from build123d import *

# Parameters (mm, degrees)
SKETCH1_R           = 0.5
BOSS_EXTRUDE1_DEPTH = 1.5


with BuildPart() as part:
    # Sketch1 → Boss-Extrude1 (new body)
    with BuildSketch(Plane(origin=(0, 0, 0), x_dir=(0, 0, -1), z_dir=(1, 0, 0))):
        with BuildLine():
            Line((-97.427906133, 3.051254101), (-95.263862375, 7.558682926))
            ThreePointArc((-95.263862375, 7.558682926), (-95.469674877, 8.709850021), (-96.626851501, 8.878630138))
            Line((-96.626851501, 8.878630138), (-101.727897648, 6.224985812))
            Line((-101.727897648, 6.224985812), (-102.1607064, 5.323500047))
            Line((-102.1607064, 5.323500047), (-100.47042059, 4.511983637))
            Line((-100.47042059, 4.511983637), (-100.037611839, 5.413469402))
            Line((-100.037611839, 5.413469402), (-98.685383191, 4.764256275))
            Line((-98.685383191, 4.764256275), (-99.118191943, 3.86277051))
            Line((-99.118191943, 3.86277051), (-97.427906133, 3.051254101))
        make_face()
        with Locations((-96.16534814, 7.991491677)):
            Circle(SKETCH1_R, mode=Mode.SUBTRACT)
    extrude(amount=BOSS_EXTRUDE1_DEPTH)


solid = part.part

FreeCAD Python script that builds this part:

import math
import FreeCAD as App
import Part
import Sketcher
from FreeCAD import Vector

doc = App.newDocument("Part")
params = doc.addObject("Spreadsheet::Sheet", "Params")
for row, (alias, value) in enumerate([
    ("sketch1_diameter", "1 mm"),
    ("sketch1_radius", "1 mm"),
    ("sketch1_length", "5 mm"),
    ("sketch1_length2", "1 mm"),
    ("sketch1_length3", "1.5 mm"),
    ("pad1_length", "1.5 mm"),
], start=1):
    params.set(f"A{row}", alias)
    params.set(f"B{row}", "=" + value)
    params.setAlias(f"B{row}", alias)

body = doc.addObject("PartDesign::Body", "Body")

# Sketch on YZ plane
sketch1 = doc.addObject("Sketcher::SketchObject", "Sketch")
body.addObject(sketch1)
sketch1.AttachmentSupport = (doc.YZ_Plane, [""])
sketch1.MapMode = "FlatFace"
sketch1.addGeometry(Part.LineSegment(Vector(3.051254, 97.427906, 0), Vector(7.558683, 95.263862, 0)), False)
sketch1.addGeometry(Part.ArcOfCircle(Part.Circle(Vector(7.991492, 96.165348, 0), Vector(0, 0, 1), 1), math.radians(-115.645943), math.radians(27.484159)), False)
sketch1.addGeometry(Part.LineSegment(Vector(8.87863, 96.626852, 0), Vector(6.224986, 101.727898, 0)), False)
sketch1.addGeometry(Part.LineSegment(Vector(6.224986, 101.727898, 0), Vector(5.3235, 102.160706, 0)), False)
sketch1.addGeometry(Part.LineSegment(Vector(5.3235, 102.160706, 0), Vector(4.511984, 100.470421, 0)), False)
sketch1.addGeometry(Part.LineSegment(Vector(4.511984, 100.470421, 0), Vector(5.413469, 100.037612, 0)), False)
sketch1.addGeometry(Part.LineSegment(Vector(5.413469, 100.037612, 0), Vector(4.764256, 98.685383, 0)), False)
sketch1.addGeometry(Part.LineSegment(Vector(4.764256, 98.685383, 0), Vector(3.862771, 99.118192, 0)), False)
sketch1.addGeometry(Part.LineSegment(Vector(3.862771, 99.118192, 0), Vector(3.051254, 97.427906, 0)), False)
sketch1.addGeometry(Part.Circle(Vector(7.991492, 96.165348, 0), Vector(0, 0, 1), 0.5), False)
sketch1.addConstraint(Sketcher.Constraint("Tangent", 0, 2, 1, 1))
sketch1.addConstraint(Sketcher.Constraint("Tangent", 1, 2, 2, 1))
sketch1.addConstraint(Sketcher.Constraint("Coincident", 2, 2, 3, 1))
sketch1.addConstraint(Sketcher.Constraint("Coincident", 3, 2, 4, 1))
sketch1.addConstraint(Sketcher.Constraint("Coincident", 4, 2, 5, 1))
sketch1.addConstraint(Sketcher.Constraint("Coincident", 5, 2, 6, 1))
sketch1.addConstraint(Sketcher.Constraint("Coincident", 6, 2, 7, 1))
sketch1.addConstraint(Sketcher.Constraint("Coincident", 7, 2, 8, 1))
sketch1.addConstraint(Sketcher.Constraint("Coincident", 8, 2, 0, 1))
sketch1.addConstraint(Sketcher.Constraint("Coincident", 9, 3, 1, 3))
sketch1.addConstraint(Sketcher.Constraint("Parallel", 0, 3))
sketch1.addConstraint(Sketcher.Constraint("Perpendicular", 3, 4))
sketch1.addConstraint(Sketcher.Constraint("Perpendicular", 4, 5))
sketch1.addConstraint(Sketcher.Constraint("Perpendicular", 5, 6))
sketch1.addConstraint(Sketcher.Constraint("Perpendicular", 6, 7))
sketch1.addConstraint(Sketcher.Constraint("Perpendicular", 7, 8))
sketch1.addConstraint(Sketcher.Constraint("Equal", 3, 5))
sketch1.addConstraint(Sketcher.Constraint("Equal", 5, 7))
sketch1.addConstraint(Sketcher.Constraint("Equal", 4, 8))
sketch1.addConstraint(Sketcher.Constraint("Diameter", 9, 1.0))
sketch1.addConstraint(Sketcher.Constraint("Radius", 1, 1.0))
sketch1.addConstraint(Sketcher.Constraint("Distance", 0, 5.0))
sketch1.addConstraint(Sketcher.Constraint("Distance", 3, 1.0))
sketch1.addConstraint(Sketcher.Constraint("Distance", 6, 1.5))
sketch1.addConstraint(Sketcher.Constraint("Distance", 2, 5.75))
sketch1.addConstraint(Sketcher.Constraint("DistanceX", -1, 1, 3, 2, 5.3235))
sketch1.addConstraint(Sketcher.Constraint("DistanceX", 7, 2, 5, 2, 1.550699))
sketch1.addConstraint(Sketcher.Constraint("DistanceY", -1, 1, 1, 3, 96.165348))
sketch1.setExpression("Constraints[19]", "Params.sketch1_diameter")
sketch1.setExpression("Constraints[20]", "Params.sketch1_radius")
sketch1.setExpression("Constraints[21]", "Params.sketch1_length")
sketch1.setExpression("Constraints[22]", "Params.sketch1_length2")
sketch1.setExpression("Constraints[23]", "Params.sketch1_length3")
pad1 = doc.addObject("PartDesign::Pad", "Pad")
body.addObject(pad1)
pad1.Profile = sketch1
pad1.setExpression("Length", "Params.pad1_length")

doc.recompute()
